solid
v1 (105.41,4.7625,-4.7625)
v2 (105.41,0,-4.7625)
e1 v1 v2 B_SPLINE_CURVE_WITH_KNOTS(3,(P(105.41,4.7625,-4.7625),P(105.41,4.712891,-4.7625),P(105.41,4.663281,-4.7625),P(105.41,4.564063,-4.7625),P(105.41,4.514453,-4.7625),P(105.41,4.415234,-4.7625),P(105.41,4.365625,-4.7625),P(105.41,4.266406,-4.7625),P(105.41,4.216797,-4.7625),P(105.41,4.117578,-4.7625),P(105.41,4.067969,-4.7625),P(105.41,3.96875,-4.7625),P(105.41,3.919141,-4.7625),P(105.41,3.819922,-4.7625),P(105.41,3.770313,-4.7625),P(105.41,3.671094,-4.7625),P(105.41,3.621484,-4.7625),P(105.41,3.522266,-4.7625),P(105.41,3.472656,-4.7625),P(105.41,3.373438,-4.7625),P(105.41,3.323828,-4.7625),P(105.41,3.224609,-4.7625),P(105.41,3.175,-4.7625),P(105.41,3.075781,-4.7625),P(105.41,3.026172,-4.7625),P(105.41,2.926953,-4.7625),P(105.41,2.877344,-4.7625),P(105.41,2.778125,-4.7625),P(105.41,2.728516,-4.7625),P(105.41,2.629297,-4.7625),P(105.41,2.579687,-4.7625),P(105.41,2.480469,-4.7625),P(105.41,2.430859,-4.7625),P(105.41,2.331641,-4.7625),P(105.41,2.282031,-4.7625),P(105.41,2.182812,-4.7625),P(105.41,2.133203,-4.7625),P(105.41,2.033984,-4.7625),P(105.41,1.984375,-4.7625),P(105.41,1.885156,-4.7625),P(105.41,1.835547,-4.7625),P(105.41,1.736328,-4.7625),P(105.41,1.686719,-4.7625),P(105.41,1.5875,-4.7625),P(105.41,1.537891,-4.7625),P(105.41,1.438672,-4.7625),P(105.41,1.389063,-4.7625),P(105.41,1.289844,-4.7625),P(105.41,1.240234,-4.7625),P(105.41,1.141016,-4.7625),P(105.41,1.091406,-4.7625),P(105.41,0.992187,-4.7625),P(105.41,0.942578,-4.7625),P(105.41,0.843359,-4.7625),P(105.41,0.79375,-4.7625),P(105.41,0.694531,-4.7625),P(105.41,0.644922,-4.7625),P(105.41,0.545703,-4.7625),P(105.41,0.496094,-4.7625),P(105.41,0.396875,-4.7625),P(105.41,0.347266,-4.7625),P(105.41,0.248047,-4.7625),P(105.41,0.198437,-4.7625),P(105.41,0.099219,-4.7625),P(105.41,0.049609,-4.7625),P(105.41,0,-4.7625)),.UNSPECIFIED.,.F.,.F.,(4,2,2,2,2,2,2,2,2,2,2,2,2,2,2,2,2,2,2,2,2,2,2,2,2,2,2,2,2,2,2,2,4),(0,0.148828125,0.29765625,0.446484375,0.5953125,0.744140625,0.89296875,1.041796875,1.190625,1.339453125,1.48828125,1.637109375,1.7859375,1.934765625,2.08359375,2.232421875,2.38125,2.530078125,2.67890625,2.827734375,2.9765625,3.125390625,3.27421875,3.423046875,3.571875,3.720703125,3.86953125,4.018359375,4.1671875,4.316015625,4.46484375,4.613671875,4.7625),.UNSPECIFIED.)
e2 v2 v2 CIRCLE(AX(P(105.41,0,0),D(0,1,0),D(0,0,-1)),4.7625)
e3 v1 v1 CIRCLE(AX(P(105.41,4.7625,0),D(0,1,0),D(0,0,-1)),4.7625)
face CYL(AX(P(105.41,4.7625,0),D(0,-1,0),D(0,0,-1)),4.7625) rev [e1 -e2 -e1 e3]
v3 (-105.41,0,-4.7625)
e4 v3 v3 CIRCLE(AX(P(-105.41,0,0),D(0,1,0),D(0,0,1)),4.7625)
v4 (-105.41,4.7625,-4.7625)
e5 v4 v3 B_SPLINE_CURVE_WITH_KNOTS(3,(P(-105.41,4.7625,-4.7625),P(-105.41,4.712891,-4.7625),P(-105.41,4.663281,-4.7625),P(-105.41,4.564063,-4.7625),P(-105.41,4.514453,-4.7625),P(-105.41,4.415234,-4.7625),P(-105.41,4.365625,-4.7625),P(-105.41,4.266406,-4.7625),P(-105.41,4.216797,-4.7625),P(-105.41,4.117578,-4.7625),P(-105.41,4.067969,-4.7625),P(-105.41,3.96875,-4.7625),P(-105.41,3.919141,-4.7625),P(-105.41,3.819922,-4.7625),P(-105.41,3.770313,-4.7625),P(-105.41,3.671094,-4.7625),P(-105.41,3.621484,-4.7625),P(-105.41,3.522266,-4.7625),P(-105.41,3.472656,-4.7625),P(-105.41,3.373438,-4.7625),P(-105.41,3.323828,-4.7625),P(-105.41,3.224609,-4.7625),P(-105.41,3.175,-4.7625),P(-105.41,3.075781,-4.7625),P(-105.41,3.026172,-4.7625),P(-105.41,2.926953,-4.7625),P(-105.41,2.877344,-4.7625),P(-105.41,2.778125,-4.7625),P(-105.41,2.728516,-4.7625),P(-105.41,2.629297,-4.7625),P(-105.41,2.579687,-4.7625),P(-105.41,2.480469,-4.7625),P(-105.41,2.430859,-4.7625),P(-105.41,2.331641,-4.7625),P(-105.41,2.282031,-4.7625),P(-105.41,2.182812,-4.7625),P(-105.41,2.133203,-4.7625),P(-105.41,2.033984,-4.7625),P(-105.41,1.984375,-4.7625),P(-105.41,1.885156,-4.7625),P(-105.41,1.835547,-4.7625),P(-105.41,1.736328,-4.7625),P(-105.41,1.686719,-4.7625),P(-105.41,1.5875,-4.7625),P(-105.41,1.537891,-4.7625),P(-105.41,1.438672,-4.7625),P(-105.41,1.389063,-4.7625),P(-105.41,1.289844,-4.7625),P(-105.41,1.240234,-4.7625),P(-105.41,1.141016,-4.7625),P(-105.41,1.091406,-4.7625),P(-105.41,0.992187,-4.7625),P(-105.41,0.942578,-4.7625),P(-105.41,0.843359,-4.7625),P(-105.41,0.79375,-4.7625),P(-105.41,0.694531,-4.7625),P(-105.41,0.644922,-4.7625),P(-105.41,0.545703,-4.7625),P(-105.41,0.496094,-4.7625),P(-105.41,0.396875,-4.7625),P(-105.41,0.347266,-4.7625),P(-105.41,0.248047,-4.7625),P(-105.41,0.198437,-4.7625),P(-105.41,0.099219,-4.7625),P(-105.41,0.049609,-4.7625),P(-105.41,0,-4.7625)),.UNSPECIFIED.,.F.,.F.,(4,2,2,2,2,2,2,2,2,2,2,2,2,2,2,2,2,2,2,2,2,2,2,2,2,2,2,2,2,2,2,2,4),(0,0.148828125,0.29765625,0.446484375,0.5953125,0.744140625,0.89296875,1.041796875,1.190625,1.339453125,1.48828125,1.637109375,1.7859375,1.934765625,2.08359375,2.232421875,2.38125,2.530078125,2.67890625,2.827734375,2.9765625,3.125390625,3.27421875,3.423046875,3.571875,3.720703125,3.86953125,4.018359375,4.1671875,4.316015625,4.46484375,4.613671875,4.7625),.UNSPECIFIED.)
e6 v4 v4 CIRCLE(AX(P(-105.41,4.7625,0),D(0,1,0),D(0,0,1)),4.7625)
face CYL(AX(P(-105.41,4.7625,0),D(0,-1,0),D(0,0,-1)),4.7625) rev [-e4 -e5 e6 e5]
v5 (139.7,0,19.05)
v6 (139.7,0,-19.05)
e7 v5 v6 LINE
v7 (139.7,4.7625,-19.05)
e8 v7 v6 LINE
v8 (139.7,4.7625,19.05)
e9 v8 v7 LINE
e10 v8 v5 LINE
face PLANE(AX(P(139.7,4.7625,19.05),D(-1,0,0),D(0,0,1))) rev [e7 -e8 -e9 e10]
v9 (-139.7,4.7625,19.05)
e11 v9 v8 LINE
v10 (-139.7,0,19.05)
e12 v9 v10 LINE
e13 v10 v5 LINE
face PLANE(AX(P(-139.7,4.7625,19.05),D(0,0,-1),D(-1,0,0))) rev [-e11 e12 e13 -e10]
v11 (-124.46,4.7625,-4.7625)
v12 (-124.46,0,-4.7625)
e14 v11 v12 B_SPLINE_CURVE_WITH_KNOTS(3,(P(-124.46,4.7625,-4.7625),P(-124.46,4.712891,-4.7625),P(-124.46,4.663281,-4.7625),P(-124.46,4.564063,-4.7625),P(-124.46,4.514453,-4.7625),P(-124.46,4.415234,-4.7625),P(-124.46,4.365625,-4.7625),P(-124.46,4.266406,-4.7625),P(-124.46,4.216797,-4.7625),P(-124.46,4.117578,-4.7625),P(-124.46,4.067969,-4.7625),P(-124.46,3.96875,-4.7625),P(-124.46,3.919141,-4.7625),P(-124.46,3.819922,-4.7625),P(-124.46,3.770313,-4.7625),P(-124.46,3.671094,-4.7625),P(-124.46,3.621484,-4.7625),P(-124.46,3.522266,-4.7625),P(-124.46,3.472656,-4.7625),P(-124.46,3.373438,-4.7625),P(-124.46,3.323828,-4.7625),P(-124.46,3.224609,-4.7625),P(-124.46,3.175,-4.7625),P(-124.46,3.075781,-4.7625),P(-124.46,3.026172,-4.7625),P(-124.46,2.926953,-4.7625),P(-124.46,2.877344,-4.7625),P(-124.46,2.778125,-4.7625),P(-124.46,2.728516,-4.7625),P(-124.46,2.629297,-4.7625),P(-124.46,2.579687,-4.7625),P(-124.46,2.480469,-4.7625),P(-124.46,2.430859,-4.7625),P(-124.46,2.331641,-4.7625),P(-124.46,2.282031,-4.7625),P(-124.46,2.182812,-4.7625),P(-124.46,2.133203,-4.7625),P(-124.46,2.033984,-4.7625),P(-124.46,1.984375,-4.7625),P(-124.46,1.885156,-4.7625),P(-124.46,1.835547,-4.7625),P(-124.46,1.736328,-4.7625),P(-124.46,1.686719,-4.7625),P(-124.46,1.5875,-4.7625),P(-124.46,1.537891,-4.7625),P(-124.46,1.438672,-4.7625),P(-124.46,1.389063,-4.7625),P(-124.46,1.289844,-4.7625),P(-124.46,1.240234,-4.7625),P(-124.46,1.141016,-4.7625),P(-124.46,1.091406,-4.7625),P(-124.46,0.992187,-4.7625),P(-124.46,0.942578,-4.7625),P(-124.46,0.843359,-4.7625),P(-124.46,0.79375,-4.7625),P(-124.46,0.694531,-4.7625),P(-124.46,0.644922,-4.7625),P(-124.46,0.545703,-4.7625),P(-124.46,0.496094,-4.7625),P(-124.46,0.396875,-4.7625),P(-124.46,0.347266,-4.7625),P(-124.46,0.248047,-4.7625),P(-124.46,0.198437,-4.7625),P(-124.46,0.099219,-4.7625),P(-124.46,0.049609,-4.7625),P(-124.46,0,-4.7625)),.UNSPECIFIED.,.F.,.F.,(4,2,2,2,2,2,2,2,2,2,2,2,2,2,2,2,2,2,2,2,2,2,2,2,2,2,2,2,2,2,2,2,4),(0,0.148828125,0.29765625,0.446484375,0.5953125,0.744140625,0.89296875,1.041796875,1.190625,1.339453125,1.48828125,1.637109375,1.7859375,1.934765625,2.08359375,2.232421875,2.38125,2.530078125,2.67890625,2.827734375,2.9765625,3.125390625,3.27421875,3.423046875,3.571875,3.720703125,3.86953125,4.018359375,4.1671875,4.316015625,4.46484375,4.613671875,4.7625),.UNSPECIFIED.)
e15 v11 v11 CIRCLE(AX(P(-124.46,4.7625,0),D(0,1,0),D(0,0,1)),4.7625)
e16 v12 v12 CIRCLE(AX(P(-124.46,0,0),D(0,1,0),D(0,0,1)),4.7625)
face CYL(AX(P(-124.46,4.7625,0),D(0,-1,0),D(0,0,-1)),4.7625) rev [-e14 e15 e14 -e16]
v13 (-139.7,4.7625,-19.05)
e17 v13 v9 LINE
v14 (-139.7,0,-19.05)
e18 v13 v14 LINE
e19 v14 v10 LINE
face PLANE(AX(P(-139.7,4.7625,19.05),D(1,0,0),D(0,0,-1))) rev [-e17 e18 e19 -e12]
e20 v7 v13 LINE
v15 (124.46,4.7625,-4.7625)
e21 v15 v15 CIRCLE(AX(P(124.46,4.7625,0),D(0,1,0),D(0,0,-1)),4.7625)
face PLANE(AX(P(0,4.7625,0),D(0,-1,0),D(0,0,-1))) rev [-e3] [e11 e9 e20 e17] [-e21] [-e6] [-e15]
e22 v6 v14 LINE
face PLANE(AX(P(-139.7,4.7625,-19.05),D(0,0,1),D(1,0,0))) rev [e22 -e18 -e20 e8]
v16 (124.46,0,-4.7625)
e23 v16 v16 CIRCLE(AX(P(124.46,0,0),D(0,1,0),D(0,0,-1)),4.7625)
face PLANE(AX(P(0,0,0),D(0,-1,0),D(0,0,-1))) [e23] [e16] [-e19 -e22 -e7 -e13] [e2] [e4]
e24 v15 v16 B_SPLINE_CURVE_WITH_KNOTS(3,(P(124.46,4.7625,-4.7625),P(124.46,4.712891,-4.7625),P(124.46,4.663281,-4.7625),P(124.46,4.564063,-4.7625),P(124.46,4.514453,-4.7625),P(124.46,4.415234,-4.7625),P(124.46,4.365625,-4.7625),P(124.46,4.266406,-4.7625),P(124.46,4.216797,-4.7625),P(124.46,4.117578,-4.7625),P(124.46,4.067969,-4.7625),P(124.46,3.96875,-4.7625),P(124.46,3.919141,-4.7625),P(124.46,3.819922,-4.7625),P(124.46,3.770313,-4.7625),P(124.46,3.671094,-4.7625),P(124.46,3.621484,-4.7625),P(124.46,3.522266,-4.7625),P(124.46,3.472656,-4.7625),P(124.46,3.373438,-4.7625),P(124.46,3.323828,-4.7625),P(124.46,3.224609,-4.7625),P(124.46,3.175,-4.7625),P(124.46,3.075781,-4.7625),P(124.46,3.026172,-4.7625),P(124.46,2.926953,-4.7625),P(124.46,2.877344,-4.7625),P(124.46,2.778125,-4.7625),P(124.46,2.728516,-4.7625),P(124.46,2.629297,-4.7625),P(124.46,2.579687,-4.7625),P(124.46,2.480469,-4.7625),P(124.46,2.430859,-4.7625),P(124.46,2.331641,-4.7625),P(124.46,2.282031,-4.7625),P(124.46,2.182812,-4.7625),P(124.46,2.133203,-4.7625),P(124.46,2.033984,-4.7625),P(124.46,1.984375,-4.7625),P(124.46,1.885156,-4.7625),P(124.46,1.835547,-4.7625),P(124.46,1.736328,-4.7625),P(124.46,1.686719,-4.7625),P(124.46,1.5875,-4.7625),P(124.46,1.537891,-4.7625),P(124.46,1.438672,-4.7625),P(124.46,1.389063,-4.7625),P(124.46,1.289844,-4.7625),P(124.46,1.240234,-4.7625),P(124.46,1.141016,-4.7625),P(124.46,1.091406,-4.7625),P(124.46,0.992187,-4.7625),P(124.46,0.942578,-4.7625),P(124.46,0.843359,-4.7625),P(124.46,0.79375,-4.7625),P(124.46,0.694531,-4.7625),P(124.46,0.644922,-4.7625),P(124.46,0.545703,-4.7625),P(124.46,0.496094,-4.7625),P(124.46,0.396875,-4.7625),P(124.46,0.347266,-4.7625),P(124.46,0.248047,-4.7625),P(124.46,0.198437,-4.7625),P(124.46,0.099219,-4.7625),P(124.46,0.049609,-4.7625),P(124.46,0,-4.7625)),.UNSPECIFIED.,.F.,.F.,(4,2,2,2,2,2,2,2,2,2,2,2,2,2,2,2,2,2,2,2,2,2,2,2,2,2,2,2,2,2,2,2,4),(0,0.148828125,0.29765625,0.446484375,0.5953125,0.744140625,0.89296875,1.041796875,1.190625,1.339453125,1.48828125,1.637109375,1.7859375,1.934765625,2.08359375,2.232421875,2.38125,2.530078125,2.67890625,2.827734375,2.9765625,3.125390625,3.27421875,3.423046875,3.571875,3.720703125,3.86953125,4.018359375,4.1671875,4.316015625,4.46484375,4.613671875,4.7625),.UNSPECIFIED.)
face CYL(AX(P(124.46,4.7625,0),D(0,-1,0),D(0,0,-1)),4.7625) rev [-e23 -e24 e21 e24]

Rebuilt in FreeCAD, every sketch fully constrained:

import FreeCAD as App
import Part
import Sketcher

V = App.Vector
Q = App.Units.Quantity


def add_polygon(sketch, points):
    """Adds a closed chain of lines whose ends are joined by coincident constraints."""
    first, n = sketch.GeometryCount, len(points)
    for a, b in zip(points, points[1:] + points[:1]):
        sketch.addGeometry(Part.LineSegment(App.Vector(*a, 0), App.Vector(*b, 0)), False)
    for i in range(n):
        sketch.addConstraint(Sketcher.Constraint("Coincident", first + i, 2, first + (i + 1) % n, 1))

doc = App.newDocument("Part")
body = doc.addObject("PartDesign::Body", "Body")

# Sketch on XZ plane
sketch1 = doc.addObject("Sketcher::SketchObject", "Sketch")
body.addObject(sketch1)
sketch1.AttachmentSupport = (doc.XZ_Plane, [""])
sketch1.MapMode = "FlatFace"
add_polygon(sketch1, [(-139.7, -19.1), (-139.7, 19.1), (139.7, 19.1), (139.7, -19.1)])  # lines 0-3
sketch1.addGeometry(Part.Circle(V(-124.5, 0, 0), V(0, 0, 1), 4.8), False)  # 4
sketch1.addGeometry(Part.Circle(V(-105.4, 0, 0), V(0, 0, 1), 4.8), False)  # 5
sketch1.addGeometry(Part.Circle(V(105.4, 0, 0), V(0, 0, 1), 4.8), False)  # 6
sketch1.addGeometry(Part.Circle(V(124.5, 0, 0), V(0, 0, 1), 4.8), False)  # 7
sketch1.addConstraint([
    Sketcher.Constraint("Vertical", 0),
    Sketcher.Constraint("Horizontal", 1),
    Sketcher.Constraint("Vertical", 2),
    Sketcher.Constraint("Horizontal", 3),
    Sketcher.Constraint("Equal", 4, 5),
    Sketcher.Constraint("Equal", 5, 6),
    Sketcher.Constraint("Equal", 6, 7),
    Sketcher.Constraint("Symmetric", 5, 3, 6, 3, -1, 1),
    Sketcher.Constraint("Symmetric", 4, 3, 7, 3, -1, 1),
    Sketcher.Constraint("Symmetric", 0, 2, 2, 2, -1, 1),
    Sketcher.Constraint("PointOnObject", 4, 3, -1),
    Sketcher.Constraint("PointOnObject", 5, 3, -1),
    Sketcher.Constraint("DistanceX", 1, 1, 1, 2, Q("11 in")),
    Sketcher.Constraint("Diameter", 4, Q("0.375 in")),
    Sketcher.Constraint("DistanceY", 0, 1, 0, 2, Q("1.5 in")),
    Sketcher.Constraint("DistanceX", 4, 3, -1, 1, Q("4.9 in")),
    Sketcher.Constraint("DistanceX", 5, 3, 6, 3, Q("8.3 in")),
])
pad1 = doc.addObject("PartDesign::Pad", "Pad")
body.addObject(pad1)
pad1.Profile = sketch1
pad1.Length = Q("0.1875 in")
pad1.Reversed = True

doc.recompute()
